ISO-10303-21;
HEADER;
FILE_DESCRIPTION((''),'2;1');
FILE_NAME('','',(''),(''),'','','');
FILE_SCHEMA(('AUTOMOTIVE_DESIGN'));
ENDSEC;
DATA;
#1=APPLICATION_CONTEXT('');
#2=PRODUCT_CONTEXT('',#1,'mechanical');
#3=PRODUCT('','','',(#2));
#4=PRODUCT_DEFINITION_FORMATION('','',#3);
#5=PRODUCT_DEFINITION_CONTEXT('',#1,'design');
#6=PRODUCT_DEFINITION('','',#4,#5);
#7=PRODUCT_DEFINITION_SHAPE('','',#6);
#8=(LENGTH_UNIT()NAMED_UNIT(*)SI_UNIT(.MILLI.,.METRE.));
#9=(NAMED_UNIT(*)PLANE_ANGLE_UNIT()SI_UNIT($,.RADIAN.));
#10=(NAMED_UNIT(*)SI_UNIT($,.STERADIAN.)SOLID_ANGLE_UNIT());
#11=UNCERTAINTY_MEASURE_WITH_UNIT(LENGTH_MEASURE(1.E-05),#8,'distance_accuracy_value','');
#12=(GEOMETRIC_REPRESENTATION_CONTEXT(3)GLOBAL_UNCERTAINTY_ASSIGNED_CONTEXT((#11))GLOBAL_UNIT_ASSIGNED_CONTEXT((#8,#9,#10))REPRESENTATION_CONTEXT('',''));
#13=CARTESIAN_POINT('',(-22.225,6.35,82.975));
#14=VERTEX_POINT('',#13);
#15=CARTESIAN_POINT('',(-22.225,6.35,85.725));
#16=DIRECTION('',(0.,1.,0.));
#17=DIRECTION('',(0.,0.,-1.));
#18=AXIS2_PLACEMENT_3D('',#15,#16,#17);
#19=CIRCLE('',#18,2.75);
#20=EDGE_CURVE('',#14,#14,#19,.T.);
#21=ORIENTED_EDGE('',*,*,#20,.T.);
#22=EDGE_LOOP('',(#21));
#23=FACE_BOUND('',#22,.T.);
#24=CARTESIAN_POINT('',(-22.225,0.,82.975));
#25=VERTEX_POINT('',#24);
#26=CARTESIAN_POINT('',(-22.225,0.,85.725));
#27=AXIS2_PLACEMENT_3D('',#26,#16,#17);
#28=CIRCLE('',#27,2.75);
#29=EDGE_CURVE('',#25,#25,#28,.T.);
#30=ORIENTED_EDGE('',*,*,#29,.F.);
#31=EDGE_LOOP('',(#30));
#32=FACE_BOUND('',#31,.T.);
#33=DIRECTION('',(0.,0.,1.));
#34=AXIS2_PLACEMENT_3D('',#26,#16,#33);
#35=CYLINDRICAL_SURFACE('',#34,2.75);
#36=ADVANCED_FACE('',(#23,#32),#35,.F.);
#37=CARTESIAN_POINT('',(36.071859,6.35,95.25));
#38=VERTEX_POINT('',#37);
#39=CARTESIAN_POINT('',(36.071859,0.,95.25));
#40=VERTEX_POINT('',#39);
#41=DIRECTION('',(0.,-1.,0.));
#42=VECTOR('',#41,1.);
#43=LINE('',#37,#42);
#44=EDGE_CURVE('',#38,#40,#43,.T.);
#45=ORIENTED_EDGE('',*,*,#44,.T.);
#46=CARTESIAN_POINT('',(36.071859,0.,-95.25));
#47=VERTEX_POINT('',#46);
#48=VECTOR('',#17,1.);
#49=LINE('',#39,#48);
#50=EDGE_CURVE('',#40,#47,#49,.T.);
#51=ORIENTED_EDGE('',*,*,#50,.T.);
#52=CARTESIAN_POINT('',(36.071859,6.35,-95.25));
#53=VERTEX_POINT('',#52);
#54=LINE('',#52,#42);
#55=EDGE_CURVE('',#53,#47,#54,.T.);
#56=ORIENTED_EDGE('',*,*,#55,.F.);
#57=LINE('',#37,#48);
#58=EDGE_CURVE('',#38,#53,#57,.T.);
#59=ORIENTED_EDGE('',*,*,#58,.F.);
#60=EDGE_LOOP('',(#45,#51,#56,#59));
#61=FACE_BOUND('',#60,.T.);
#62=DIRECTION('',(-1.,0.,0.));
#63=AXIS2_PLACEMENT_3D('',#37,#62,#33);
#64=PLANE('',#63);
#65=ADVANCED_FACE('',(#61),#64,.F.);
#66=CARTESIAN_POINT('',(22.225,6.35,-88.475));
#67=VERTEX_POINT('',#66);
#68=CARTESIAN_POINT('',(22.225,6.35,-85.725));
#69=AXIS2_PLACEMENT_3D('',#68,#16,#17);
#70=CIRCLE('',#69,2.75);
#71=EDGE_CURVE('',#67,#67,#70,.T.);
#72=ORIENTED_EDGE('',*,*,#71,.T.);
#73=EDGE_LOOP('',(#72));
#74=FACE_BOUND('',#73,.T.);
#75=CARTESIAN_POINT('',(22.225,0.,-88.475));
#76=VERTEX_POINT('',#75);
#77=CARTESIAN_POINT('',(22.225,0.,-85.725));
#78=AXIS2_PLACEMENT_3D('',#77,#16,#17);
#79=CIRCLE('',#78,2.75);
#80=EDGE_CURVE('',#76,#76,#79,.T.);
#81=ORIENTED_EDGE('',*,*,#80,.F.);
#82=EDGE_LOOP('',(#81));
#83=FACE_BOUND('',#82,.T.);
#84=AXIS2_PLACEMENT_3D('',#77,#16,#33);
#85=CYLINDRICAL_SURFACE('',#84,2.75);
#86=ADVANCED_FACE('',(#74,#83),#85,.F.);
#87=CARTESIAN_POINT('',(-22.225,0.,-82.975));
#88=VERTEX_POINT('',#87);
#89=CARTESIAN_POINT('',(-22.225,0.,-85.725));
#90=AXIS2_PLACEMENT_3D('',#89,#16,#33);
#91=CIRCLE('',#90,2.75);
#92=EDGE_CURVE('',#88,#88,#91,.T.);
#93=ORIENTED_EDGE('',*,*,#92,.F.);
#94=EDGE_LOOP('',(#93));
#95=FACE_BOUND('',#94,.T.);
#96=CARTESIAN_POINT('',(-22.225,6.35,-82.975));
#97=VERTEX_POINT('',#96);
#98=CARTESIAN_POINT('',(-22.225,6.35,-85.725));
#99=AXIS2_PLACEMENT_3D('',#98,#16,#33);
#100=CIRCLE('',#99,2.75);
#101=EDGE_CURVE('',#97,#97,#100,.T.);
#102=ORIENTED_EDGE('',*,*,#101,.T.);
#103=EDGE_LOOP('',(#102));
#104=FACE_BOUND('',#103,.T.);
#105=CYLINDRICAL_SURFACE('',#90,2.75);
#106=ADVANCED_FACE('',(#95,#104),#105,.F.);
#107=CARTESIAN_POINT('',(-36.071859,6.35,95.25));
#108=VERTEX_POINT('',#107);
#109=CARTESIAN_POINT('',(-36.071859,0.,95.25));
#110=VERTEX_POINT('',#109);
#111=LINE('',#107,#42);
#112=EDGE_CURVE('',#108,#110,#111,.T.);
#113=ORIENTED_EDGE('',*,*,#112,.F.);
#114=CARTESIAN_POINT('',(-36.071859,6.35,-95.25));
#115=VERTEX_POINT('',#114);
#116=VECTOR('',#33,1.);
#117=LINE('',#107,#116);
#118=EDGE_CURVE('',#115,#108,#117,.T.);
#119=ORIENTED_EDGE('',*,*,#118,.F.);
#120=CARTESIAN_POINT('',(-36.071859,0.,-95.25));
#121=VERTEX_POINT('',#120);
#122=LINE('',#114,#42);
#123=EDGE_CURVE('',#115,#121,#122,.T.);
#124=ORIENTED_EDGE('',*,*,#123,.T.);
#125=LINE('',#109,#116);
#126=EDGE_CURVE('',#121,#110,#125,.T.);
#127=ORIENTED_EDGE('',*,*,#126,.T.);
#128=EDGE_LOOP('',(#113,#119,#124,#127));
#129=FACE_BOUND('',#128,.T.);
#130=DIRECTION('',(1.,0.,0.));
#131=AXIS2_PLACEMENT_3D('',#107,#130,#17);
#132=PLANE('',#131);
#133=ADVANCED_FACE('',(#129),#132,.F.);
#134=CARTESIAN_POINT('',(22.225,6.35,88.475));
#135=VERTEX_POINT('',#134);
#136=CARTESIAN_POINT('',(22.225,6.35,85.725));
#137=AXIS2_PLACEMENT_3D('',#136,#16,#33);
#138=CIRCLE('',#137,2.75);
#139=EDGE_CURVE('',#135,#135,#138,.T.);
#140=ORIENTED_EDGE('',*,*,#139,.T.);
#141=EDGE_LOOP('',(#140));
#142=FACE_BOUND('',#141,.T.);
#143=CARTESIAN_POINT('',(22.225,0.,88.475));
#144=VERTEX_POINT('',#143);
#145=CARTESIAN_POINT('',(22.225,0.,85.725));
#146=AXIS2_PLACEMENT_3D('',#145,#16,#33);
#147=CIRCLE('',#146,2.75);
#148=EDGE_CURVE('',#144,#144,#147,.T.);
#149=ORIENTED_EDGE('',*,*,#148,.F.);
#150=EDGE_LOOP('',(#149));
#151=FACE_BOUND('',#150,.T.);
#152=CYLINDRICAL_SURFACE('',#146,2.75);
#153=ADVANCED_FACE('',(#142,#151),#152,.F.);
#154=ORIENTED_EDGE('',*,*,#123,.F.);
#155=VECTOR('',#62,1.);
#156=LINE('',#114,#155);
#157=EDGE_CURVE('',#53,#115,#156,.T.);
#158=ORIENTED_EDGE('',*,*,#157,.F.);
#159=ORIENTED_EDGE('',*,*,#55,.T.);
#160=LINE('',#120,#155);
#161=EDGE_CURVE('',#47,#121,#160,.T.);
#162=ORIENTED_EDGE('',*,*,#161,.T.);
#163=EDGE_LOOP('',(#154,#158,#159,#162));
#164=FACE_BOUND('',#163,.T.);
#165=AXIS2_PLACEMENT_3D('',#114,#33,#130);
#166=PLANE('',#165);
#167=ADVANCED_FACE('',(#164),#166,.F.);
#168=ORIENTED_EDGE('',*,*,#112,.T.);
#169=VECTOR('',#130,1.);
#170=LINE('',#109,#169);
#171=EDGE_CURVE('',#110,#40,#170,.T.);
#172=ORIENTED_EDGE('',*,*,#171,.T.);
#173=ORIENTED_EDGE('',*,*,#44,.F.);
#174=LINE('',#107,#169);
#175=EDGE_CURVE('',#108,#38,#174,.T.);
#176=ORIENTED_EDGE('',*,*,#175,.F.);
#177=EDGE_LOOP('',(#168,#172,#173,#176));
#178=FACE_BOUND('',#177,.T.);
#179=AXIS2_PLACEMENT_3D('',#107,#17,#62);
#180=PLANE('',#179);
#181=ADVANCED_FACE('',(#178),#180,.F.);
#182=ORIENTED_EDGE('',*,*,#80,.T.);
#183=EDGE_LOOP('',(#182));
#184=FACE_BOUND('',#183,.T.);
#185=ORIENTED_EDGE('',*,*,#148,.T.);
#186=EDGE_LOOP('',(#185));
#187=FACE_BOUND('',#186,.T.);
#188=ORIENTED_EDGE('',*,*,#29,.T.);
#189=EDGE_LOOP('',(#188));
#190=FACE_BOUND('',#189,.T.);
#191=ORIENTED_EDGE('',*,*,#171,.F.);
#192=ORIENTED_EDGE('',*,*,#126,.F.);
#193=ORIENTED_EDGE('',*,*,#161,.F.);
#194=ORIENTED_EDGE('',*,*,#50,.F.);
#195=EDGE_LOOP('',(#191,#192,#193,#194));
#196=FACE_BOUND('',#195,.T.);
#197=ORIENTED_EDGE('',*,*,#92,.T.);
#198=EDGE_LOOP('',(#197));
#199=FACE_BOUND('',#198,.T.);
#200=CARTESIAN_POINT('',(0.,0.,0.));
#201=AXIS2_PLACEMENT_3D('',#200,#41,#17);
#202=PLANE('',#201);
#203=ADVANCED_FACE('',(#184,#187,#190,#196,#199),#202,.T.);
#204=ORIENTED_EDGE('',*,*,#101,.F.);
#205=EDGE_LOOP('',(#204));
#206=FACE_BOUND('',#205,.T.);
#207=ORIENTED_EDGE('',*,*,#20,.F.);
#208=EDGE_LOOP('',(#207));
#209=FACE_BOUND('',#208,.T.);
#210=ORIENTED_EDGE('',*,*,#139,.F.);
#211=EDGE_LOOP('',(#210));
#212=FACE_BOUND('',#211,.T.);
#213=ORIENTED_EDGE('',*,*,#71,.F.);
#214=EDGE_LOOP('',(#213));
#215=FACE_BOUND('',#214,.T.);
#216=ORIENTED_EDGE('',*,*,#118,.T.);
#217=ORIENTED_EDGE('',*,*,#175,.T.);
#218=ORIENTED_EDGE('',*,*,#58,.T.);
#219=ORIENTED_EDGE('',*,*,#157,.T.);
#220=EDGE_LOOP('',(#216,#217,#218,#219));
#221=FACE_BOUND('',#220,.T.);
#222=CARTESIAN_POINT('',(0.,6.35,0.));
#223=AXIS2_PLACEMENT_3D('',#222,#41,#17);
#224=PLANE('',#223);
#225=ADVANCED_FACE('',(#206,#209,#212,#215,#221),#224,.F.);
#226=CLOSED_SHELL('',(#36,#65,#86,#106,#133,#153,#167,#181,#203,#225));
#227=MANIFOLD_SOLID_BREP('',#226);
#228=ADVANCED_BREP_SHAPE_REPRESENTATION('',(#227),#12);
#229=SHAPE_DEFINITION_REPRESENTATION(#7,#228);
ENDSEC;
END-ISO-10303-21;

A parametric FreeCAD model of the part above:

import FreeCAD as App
import Part
import Sketcher
Q = App.Units.Quantity

doc = App.newDocument("Part")
params = doc.addObject("Spreadsheet::Sheet", "Params")
for row, (alias, value) in enumerate([
    ("sketch1_height", "7.5 in"),
    ("pad1_length", "0.25 in"),
    ("pocket1_length", "0.25 in"),
], start=1):
    params.set(f"A{row}", alias)
    params.set(f"B{row}", "=" + value)
    params.setAlias(f"B{row}", alias)

body = doc.addObject("PartDesign::Body", "Body")

# Sketch on XZ plane
sketch1 = doc.addObject("Sketcher::SketchObject", "Sketch")
body.addObject(sketch1)
sketch1.AttachmentSupport = (doc.XZ_Plane, [""])
sketch1.MapMode = "FlatFace"
sketch1.addGeometry(Part.LineSegment(App.Vector(-36, -95, 0), App.Vector(-36, 95, 0)), False)
sketch1.addGeometry(Part.LineSegment(App.Vector(-36, 95, 0), App.Vector(36, 95, 0)), False)
sketch1.addGeometry(Part.LineSegment(App.Vector(36, 95, 0), App.Vector(36, -95, 0)), False)
sketch1.addGeometry(Part.LineSegment(App.Vector(36, -95, 0), App.Vector(-36, -95, 0)), False)
sketch1.addConstraint(Sketcher.Constraint("Coincident", 0, 2, 1, 1))
sketch1.addConstraint(Sketcher.Constraint("Coincident", 1, 2, 2, 1))
sketch1.addConstraint(Sketcher.Constraint("Coincident", 2, 2, 3, 1))
sketch1.addConstraint(Sketcher.Constraint("Coincident", 3, 2, 0, 1))
sketch1.addConstraint(Sketcher.Constraint("Vertical", 0))
sketch1.addConstraint(Sketcher.Constraint("Horizontal", 1))
sketch1.addConstraint(Sketcher.Constraint("Vertical", 2))
sketch1.addConstraint(Sketcher.Constraint("Horizontal", 3))
sketch1.addConstraint(Sketcher.Constraint("Symmetric", 0, 2, 2, 2, -1, 1))
sketch1.addConstraint(Sketcher.Constraint("DistanceY", 0, 1, 0, 2, Q("7.5 in")))
sketch1.addConstraint(Sketcher.Constraint("DistanceX", 1, 1, 1, 2, Q("72.143719 mm")))
sketch1.setExpression("Constraints[9]", "Params.sketch1_height")
pad1 = doc.addObject("PartDesign::Pad", "Pad")
body.addObject(pad1)
pad1.Profile = sketch1
pad1.setExpression("Length", "Params.pad1_length")
pad1.Reversed = True

# Sketch on XZ plane
sketch2 = doc.addObject("Sketcher::SketchObject", "Sketch001")
body.addObject(sketch2)
sketch2.AttachmentSupport = (doc.XZ_Plane, [""])
sketch2.MapMode = "FlatFace"
sketch2.AttachmentOffset = App.Placement(App.Vector(0, 0, -0.25 * 25.4), App.Rotation())
sketch2.addGeometry(Part.Circle(App.Vector(-22.2, -85.7, 0), App.Vector(0, 0, 1), 2.8), False)
sketch2.addGeometry(Part.Circle(App.Vector(22.2, -85.7, 0), App.Vector(0, 0, 1), 2.8), False)
sketch2.addGeometry(Part.Circle(App.Vector(22.2, 85.7, 0), App.Vector(0, 0, 1), 2.8), False)
sketch2.addGeometry(Part.Circle(App.Vector(-22.2, 85.7, 0), App.Vector(0, 0, 1), 2.8), False)
sketch2.addConstraint(Sketcher.Constraint("Equal", 0, 1))
sketch2.addConstraint(Sketcher.Constraint("Equal", 1, 2))
sketch2.addConstraint(Sketcher.Constraint("Equal", 2, 3))
sketch2.addConstraint(Sketcher.Constraint("Symmetric", 0, 3, 2, 3, -1, 1))
sketch2.addConstraint(Sketcher.Constraint("Symmetric", 1, 3, 3, 3, -1, 1))
sketch2.addConstraint(Sketcher.Constraint("Symmetric", 0, 3, 1, 3, -2))
sketch2.addConstraint(Sketcher.Constraint("Diameter", 0, Q("5.5 mm")))
sketch2.addConstraint(Sketcher.Constraint("DistanceX", 0, 3, 1, 3, Q("1.75 in")))
sketch2.addConstraint(Sketcher.Constraint("DistanceY", 1, 3, 2, 3, Q("6.75 in")))
pocket1 = doc.addObject("PartDesign::Pocket", "Pocket")
body.addObject(pocket1)
pocket1.Profile = sketch2
pocket1.setExpression("Length", "Params.pocket1_length")
pocket1.Reversed = True

doc.recompute()
